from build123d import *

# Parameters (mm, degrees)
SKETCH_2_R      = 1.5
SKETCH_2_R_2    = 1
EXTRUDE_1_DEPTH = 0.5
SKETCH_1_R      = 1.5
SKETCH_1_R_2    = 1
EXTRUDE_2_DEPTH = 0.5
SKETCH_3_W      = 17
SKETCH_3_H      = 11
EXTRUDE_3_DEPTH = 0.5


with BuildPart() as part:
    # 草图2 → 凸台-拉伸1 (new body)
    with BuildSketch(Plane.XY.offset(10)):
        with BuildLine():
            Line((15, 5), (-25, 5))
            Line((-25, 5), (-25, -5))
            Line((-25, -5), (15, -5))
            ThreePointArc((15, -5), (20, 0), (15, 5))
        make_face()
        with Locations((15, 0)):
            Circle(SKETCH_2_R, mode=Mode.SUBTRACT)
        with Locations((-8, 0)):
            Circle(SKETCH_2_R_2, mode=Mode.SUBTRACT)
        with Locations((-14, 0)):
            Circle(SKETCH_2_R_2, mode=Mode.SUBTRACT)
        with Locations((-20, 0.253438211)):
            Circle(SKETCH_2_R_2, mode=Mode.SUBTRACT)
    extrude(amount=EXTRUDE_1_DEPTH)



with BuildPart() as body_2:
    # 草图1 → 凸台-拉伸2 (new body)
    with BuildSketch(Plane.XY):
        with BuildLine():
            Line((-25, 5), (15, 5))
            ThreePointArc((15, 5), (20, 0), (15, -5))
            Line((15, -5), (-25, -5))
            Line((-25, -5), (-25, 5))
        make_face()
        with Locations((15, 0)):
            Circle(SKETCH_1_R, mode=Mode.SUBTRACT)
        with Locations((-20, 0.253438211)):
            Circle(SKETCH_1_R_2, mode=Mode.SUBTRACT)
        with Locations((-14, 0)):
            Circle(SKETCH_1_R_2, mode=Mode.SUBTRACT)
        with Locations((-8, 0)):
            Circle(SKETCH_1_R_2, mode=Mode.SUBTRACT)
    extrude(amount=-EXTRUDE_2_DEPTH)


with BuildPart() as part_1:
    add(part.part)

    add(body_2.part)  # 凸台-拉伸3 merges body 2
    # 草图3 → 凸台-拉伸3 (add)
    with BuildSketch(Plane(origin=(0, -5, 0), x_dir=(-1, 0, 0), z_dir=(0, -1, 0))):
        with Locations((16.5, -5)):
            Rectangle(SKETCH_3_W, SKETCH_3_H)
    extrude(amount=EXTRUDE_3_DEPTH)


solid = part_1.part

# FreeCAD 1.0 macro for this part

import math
import FreeCAD as App
import Part
import Sketcher
Q = App.Units.Quantity

doc = App.newDocument("Part")
body = doc.addObject("PartDesign::Body", "Body")

# Sketch on XY plane
sketch1 = body.newObject("Sketcher::SketchObject", "Sketch")
sketch1.AttachmentSupport = (doc.getObject("XY_Plane"), [""])
sketch1.MapMode = "FlatFace"
sketch1.AttachmentOffset = App.Placement(App.Vector(0, 0, 10), App.Rotation())
sketch1.addGeometry(Part.LineSegment(App.Vector(15, 5, 0), App.Vector(-25, 5, 0)), False)
sketch1.addGeometry(Part.LineSegment(App.Vector(-25, 5, 0), App.Vector(-25, -5, 0)), False)
sketch1.addGeometry(Part.LineSegment(App.Vector(-25, -5, 0), App.Vector(15, -5, 0)), False)
sketch1.addGeometry(Part.ArcOfCircle(Part.Circle(App.Vector(15, 0, 0), App.Vector(0, 0, 1), 5), math.radians(-90), math.radians(90)), False)
sketch1.addGeometry(Part.Circle(App.Vector(-20, 0.253438, 0), App.Vector(0, 0, 1), 1), False)
sketch1.addGeometry(Part.Circle(App.Vector(-14, 0, 0), App.Vector(0, 0, 1), 1), False)
sketch1.addGeometry(Part.Circle(App.Vector(-8, 0, 0), App.Vector(0, 0, 1), 1), False)
sketch1.addGeometry(Part.Circle(App.Vector(15, 0, 0), App.Vector(0, 0, 1), 1.5), False)
sketch1.addConstraint(Sketcher.Constraint("Coincident", 0, 2, 1, 1))
sketch1.addConstraint(Sketcher.Constraint("Coincident", 1, 2, 2, 1))
sketch1.addConstraint(Sketcher.Constraint("Tangent", 2, 2, 3, 1))
sketch1.addConstraint(Sketcher.Constraint("Tangent", 3, 2, 0, 1))
sketch1.addConstraint(Sketcher.Constraint("Horizontal", 0))
sketch1.addConstraint(Sketcher.Constraint("Vertical", 1))
sketch1.addConstraint(Sketcher.Constraint("Horizontal", 2))
sketch1.addConstraint(Sketcher.Constraint("Coincident", 7, 3, 3, 3))
sketch1.addConstraint(Sketcher.Constraint("Equal", 4, 5))
sketch1.addConstraint(Sketcher.Constraint("Equal", 5, 6))
sketch1.addConstraint(Sketcher.Constraint("PointOnObject", 3, 3, -1))
sketch1.addConstraint(Sketcher.Constraint("PointOnObject", 5, 3, -1))
sketch1.addConstraint(Sketcher.Constraint("PointOnObject", 6, 3, -1))
sketch1.addConstraint(Sketcher.Constraint("Diameter", 4, Q("2 mm")))
sketch1.addConstraint(Sketcher.Constraint("Diameter", 7, Q("3 mm")))
sketch1.addConstraint(Sketcher.Constraint("Radius", 3, Q("5 mm")))
sketch1.addConstraint(Sketcher.Constraint("DistanceX", 0, 2, 0, 1, Q("40 mm")))
sketch1.addConstraint(Sketcher.Constraint("DistanceX", -1, 1, 3, 3, Q("15 mm")))
sketch1.addConstraint(Sketcher.Constraint("DistanceX", 4, 3, -1, 1, Q("20 mm")))
sketch1.addConstraint(Sketcher.Constraint("DistanceX", 5, 3, -1, 1, Q("14 mm")))
sketch1.addConstraint(Sketcher.Constraint("DistanceX", 6, 3, -1, 1, Q("8 mm")))
sketch1.addConstraint(Sketcher.Constraint("DistanceY", -1, 1, 4, 3, Q("0.253438 mm")))
pad1 = body.newObject("PartDesign::Pad", "Pad")
pad1.Profile = sketch1
pad1.Length = 0.5
body2 = doc.addObject("PartDesign::Body", "Body001")

# Sketch on XY plane
sketch2 = body2.newObject("Sketcher::SketchObject", "Sketch001")
sketch2.AttachmentSupport = (doc.getObject("XY_Plane001"), [""])
sketch2.MapMode = "FlatFace"
sketch2.addGeometry(Part.LineSegment(App.Vector(15, 5, 0), App.Vector(-25, 5, 0)), False)
sketch2.addGeometry(Part.LineSegment(App.Vector(-25, 5, 0), App.Vector(-25, -5, 0)), False)
sketch2.addGeometry(Part.LineSegment(App.Vector(-25, -5, 0), App.Vector(15, -5, 0)), False)
sketch2.addGeometry(Part.ArcOfCircle(Part.Circle(App.Vector(15, 0, 0), App.Vector(0, 0, 1), 5), math.radians(-90), math.radians(90)), False)
sketch2.addGeometry(Part.Circle(App.Vector(15, 0, 0), App.Vector(0, 0, 1), 1.5), False)
sketch2.addGeometry(Part.Circle(App.Vector(-8, 0, 0), App.Vector(0, 0, 1), 1), False)
sketch2.addGeometry(Part.Circle(App.Vector(-14, 0, 0), App.Vector(0, 0, 1), 1), False)
sketch2.addGeometry(Part.Circle(App.Vector(-20, 0.253438, 0), App.Vector(0, 0, 1), 1), False)
sketch2.addConstraint(Sketcher.Constraint("Coincident", 0, 2, 1, 1))
sketch2.addConstraint(Sketcher.Constraint("Coincident", 1, 2, 2, 1))
sketch2.addConstraint(Sketcher.Constraint("Tangent", 2, 2, 3, 1))
sketch2.addConstraint(Sketcher.Constraint("Tangent", 3, 2, 0, 1))
sketch2.addConstraint(Sketcher.Constraint("Horizontal", 0))
sketch2.addConstraint(Sketcher.Constraint("Vertical", 1))
sketch2.addConstraint(Sketcher.Constraint("Horizontal", 2))
sketch2.addConstraint(Sketcher.Constraint("Coincident", 4, 3, 3, 3))
sketch2.addConstraint(Sketcher.Constraint("Equal", 5, 6))
sketch2.addConstraint(Sketcher.Constraint("Equal", 6, 7))
sketch2.addConstraint(Sketcher.Constraint("PointOnObject", 3, 3, -1))
sketch2.addConstraint(Sketcher.Constraint("PointOnObject", 5, 3, -1))
sketch2.addConstraint(Sketcher.Constraint("PointOnObject", 6, 3, -1))
sketch2.addConstraint(Sketcher.Constraint("Diameter", 4, Q("3 mm")))
sketch2.addConstraint(Sketcher.Constraint("Diameter", 5, Q("2 mm")))
sketch2.addConstraint(Sketcher.Constraint("Radius", 3, Q("5 mm")))
sketch2.addConstraint(Sketcher.Constraint("DistanceX", 0, 2, 0, 1, Q("40 mm")))
sketch2.addConstraint(Sketcher.Constraint("DistanceX", -1, 1, 3, 3, Q("15 mm")))
sketch2.addConstraint(Sketcher.Constraint("DistanceX", 5, 3, -1, 1, Q("8 mm")))
sketch2.addConstraint(Sketcher.Constraint("DistanceX", 6, 3, -1, 1, Q("14 mm")))
sketch2.addConstraint(Sketcher.Constraint("DistanceX", 7, 3, -1, 1, Q("20 mm")))
sketch2.addConstraint(Sketcher.Constraint("DistanceY", -1, 1, 7, 3, Q("0.253438 mm")))
pad2 = body2.newObject("PartDesign::Pad", "Pad001")
pad2.Profile = sketch2
pad2.Length = 0.5
pad2.Reversed = True
body.AllowCompound = True
doc.recompute()

boolean = body.newObject("PartDesign::Boolean", "Boolean")
boolean.Type = "Fuse"
boolean.addObjects([body2])

# Sketch on XZ plane
sketch3 = body.newObject("Sketcher::SketchObject", "Sketch002")
sketch3.AttachmentSupport = (doc.getObject("XZ_Plane"), [""])
sketch3.MapMode = "FlatFace"
sketch3.AttachmentOffset = App.Placement(App.Vector(0, 0, 5), App.Rotation())
sketch3.addGeometry(Part.LineSegment(App.Vector(-8, -0.5, 0), App.Vector(-8, 10.5, 0)), False)
sketch3.addGeometry(Part.LineSegment(App.Vector(-8, 10.5, 0), App.Vector(-25, 10.5, 0)), False)
sketch3.addGeometry(Part.LineSegment(App.Vector(-25, 10.5, 0), App.Vector(-25, -0.5, 0)), False)
sketch3.addGeometry(Part.LineSegment(App.Vector(-25, -0.5, 0), App.Vector(-8, -0.5, 0)), False)
sketch3.addConstraint(Sketcher.Constraint("Coincident", 0, 2, 1, 1))
sketch3.addConstraint(Sketcher.Constraint("Coincident", 1, 2, 2, 1))
sketch3.addConstraint(Sketcher.Constraint("Coincident", 2, 2, 3, 1))
sketch3.addConstraint(Sketcher.Constraint("Coincident", 3, 2, 0, 1))
sketch3.addConstraint(Sketcher.Constraint("Vertical", 0))
sketch3.addConstraint(Sketcher.Constraint("Horizontal", 1))
sketch3.addConstraint(Sketcher.Constraint("Vertical", 2))
sketch3.addConstraint(Sketcher.Constraint("Horizontal", 3))
sketch3.addConstraint(Sketcher.Constraint("DistanceX", 1, 2, 1, 1, Q("17 mm")))
sketch3.addConstraint(Sketcher.Constraint("DistanceY", 0, 1, 0, 2, Q("11 mm")))
sketch3.addConstraint(Sketcher.Constraint("DistanceX", 0, 2, -1, 1, Q("8 mm")))
sketch3.addConstraint(Sketcher.Constraint("DistanceY", -1, 1, 0, 2, Q("10.5 mm")))
pad3 = body.newObject("PartDesign::Pad", "Pad002")
pad3.Profile = sketch3
pad3.Length = 0.5

doc.recompute()
